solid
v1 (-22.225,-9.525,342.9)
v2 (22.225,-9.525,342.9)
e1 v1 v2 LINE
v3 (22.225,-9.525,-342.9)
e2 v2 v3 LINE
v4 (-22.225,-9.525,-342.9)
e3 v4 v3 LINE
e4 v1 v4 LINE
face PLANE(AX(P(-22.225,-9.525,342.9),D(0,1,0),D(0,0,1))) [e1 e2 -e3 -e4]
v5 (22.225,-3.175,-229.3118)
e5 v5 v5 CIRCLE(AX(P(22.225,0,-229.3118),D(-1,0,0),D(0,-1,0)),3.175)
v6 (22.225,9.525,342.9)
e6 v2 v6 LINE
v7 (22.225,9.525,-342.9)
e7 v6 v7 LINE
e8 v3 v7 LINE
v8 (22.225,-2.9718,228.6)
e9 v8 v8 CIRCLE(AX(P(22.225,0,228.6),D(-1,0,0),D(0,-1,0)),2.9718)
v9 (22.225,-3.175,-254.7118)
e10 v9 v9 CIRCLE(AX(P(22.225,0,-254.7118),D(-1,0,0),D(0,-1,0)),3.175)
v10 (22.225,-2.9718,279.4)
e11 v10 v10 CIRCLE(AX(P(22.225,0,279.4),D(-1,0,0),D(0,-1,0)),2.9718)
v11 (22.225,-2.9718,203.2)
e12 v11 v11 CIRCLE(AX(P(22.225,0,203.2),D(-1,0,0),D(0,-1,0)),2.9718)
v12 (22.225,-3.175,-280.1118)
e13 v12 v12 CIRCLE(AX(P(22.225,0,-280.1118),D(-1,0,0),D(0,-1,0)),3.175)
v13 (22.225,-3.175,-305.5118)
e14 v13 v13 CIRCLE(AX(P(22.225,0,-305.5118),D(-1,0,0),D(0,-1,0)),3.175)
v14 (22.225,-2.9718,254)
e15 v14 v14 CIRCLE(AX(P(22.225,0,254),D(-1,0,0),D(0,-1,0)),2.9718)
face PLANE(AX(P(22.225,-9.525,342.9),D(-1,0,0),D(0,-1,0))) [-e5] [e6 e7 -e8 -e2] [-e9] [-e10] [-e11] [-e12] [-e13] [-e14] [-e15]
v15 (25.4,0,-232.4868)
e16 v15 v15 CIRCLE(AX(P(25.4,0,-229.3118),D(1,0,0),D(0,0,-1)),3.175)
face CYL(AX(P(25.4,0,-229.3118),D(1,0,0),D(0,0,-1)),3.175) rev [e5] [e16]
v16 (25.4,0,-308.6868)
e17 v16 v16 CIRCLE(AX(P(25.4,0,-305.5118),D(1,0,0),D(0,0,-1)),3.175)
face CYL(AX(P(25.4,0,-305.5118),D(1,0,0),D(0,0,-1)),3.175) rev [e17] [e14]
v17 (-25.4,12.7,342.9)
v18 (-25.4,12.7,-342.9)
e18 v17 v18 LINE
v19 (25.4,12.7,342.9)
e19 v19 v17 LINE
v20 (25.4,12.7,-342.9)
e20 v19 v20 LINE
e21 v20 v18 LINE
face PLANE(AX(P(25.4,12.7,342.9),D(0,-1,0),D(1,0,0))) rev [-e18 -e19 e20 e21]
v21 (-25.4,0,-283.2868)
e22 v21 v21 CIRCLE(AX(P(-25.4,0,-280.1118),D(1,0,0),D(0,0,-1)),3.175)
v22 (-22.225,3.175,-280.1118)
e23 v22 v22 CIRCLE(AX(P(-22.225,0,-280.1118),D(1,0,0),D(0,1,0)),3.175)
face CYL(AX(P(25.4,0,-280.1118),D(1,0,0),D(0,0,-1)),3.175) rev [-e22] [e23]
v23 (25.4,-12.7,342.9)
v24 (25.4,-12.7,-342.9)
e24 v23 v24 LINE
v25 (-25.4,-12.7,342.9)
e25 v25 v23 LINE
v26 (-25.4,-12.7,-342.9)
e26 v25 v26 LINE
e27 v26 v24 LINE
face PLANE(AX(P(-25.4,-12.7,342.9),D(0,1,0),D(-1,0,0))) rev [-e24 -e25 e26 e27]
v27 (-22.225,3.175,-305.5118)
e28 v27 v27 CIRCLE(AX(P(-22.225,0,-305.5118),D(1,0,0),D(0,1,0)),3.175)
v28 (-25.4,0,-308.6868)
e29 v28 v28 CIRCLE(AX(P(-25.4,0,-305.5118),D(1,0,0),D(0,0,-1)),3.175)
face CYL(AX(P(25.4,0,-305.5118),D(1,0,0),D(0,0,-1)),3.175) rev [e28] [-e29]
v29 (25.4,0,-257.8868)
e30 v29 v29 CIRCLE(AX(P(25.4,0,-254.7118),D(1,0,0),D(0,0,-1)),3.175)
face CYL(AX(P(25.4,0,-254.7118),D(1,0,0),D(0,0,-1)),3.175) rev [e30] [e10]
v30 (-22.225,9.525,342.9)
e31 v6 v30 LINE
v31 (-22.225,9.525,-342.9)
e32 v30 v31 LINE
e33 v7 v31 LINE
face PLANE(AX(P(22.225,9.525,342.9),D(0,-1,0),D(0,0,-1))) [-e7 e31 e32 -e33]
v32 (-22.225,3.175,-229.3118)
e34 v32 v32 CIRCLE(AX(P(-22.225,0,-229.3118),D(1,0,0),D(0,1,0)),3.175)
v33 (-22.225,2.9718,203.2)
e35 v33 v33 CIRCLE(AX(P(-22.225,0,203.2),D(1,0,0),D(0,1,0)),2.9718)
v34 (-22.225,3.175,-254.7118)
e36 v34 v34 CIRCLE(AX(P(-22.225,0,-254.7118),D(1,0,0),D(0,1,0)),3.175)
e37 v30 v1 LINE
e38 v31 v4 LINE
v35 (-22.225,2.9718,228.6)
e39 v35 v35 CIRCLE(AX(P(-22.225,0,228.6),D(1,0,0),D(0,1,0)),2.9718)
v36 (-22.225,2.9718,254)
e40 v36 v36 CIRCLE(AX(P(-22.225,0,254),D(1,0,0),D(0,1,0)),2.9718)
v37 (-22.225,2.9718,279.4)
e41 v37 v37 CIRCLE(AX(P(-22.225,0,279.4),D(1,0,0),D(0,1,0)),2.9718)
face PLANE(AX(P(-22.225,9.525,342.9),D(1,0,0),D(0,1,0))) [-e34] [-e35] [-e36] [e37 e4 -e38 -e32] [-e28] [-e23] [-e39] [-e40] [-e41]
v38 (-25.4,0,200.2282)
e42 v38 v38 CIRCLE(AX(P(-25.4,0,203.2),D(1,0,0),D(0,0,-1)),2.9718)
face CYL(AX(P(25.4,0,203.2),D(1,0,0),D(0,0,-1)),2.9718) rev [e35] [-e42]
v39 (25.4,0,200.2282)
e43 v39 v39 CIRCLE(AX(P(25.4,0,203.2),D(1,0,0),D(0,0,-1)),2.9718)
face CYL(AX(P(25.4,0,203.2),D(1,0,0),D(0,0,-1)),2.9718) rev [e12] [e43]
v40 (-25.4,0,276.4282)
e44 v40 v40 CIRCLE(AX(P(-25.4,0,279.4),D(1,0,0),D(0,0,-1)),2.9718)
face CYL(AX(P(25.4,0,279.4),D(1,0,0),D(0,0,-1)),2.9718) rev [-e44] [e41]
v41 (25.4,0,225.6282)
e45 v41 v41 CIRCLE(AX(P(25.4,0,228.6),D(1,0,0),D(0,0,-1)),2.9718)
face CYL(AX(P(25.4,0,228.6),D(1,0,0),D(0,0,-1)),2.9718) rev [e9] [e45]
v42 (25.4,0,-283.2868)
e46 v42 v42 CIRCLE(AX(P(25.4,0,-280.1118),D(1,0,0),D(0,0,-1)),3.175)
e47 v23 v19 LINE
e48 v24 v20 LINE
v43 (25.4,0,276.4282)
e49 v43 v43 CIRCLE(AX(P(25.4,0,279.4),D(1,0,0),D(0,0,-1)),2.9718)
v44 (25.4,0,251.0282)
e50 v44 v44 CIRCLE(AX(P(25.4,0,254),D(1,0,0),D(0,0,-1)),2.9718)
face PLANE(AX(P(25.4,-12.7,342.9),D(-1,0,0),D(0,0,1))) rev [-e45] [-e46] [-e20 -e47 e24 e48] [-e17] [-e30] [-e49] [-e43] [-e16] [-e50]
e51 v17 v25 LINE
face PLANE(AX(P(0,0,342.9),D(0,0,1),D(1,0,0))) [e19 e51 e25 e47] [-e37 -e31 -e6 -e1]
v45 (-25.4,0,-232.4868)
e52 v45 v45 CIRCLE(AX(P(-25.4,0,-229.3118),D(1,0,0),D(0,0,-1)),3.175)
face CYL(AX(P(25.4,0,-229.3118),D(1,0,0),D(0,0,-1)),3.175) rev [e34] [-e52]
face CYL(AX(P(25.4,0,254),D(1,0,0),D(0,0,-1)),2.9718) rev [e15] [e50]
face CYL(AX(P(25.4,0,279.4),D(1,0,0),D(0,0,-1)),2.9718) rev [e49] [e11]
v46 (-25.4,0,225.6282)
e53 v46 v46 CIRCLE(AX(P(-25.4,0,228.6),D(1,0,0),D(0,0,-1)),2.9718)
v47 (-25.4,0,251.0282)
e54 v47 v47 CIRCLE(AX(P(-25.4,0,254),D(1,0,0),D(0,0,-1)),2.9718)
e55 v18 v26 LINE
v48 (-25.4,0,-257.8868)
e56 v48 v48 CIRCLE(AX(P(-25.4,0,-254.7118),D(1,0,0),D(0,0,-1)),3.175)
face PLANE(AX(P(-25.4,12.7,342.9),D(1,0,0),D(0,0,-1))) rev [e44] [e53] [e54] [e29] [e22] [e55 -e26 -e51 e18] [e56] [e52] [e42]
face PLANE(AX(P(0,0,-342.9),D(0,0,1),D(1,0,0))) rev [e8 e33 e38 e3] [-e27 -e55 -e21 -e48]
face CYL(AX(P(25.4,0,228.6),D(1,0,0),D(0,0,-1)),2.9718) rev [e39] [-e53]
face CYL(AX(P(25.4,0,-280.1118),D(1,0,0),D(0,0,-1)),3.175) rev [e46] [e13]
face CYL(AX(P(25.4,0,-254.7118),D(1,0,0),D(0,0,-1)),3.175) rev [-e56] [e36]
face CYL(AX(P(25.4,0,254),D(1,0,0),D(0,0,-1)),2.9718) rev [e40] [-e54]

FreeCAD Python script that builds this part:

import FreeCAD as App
import Part
import Sketcher
Q = App.Units.Quantity


def add_polygon(sketch, points):
    """Adds a closed chain of lines whose ends are joined by coincident constraints."""
    first, n = sketch.GeometryCount, len(points)
    for a, b in zip(points, points[1:] + points[:1]):
        sketch.addGeometry(Part.LineSegment(App.Vector(*a, 0), App.Vector(*b, 0)), False)
    for i in range(n):
        sketch.addConstraint(Sketcher.Constraint("Coincident", first + i, 2, first + (i + 1) % n, 1))

doc = App.newDocument("Part")
params = doc.addObject("Spreadsheet::Sheet", "Params")
for row, (alias, value) in enumerate([
    ("sketch1_width", "2 in"),
    ("sketch1_height", "1 in"),
    ("sketch1_width2", "1.75 in"),
    ("sketch1_height2", "0.75 in"),
    ("pad1_length", "13.5 in"),
    ("pad1_length2", "13.5 in"),
    ("sketch2_diameter", "0.234 in"),
    ("hole_diameter", "0.234 in"),
    ("sketch3_diameter", "0.25 in"),
    ("hole2_diameter", "0.25 in"),
], start=1):
    params.set(f"A{row}", alias)
    params.set(f"B{row}", "=" + value)
    params.setAlias(f"B{row}", alias)

body = doc.addObject("PartDesign::Body", "Body")

# Sketch on XY plane
sketch1 = body.newObject("Sketcher::SketchObject", "Sketch")
sketch1.AttachmentSupport = (doc.getObject("XY_Plane"), [""])
sketch1.MapMode = "FlatFace"
add_polygon(sketch1, [(-25, 13), (-25, -13), (25, -13), (25, 13)])  # lines 0-3
add_polygon(sketch1, [(22, -10), (-22, -10), (-22, 10), (22, 10)])  # lines 4-7
sketch1.addConstraint([
    Sketcher.Constraint("Vertical", 0),
    Sketcher.Constraint("Horizontal", 1),
    Sketcher.Constraint("Vertical", 2),
    Sketcher.Constraint("Horizontal", 3),
    Sketcher.Constraint("Horizontal", 4),
    Sketcher.Constraint("Vertical", 5),
    Sketcher.Constraint("Horizontal", 6),
    Sketcher.Constraint("Vertical", 7),
    Sketcher.Constraint("Symmetric", 0, 2, 2, 2, -1, 1),
    Sketcher.Constraint("Symmetric", 4, 2, 6, 2, -1, 1),
    Sketcher.Constraint("DistanceX", 1, 1, 1, 2, Q("2 in")),
    Sketcher.Constraint("DistanceY", 0, 2, 0, 1, Q("1 in")),
    Sketcher.Constraint("DistanceX", 4, 2, 4, 1, Q("1.75 in")),
    Sketcher.Constraint("DistanceY", 5, 1, 5, 2, Q("0.75 in")),
])
sketch1.setExpression("Constraints[18]", "Params.sketch1_width")
sketch1.setExpression("Constraints[19]", "Params.sketch1_height")
sketch1.setExpression("Constraints[20]", "Params.sketch1_width2")
sketch1.setExpression("Constraints[21]", "Params.sketch1_height2")
pad1 = body.newObject("PartDesign::Pad", "Pad")
pad1.Profile = sketch1
pad1.Type = "TwoLengths"
pad1.setExpression("Length", "Params.pad1_length")
pad1.setExpression("Length2", "Params.pad1_length2")

# Sketch on YZ plane
sketch2 = body.newObject("Sketcher::SketchObject", "Sketch001")
sketch2.AttachmentSupport = (doc.getObject("YZ_Plane"), [""])
sketch2.MapMode = "FlatFace"
sketch2.AttachmentOffset = App.Placement(App.Vector(0, 0, 1 * 25.4), App.Rotation())
sketch2.addGeometry([
    Part.Circle(App.Vector(0, 279.4, 0), App.Vector(0, 0, 1), 3),
    Part.Circle(App.Vector(0, 254, 0), App.Vector(0, 0, 1), 3),
    Part.Circle(App.Vector(0, 228.6, 0), App.Vector(0, 0, 1), 3),
    Part.Circle(App.Vector(0, 203.2, 0), App.Vector(0, 0, 1), 3),
], False)
sketch2.addConstraint([
    Sketcher.Constraint("Equal", 0, 1),
    Sketcher.Constraint("Equal", 1, 2),
    Sketcher.Constraint("Equal", 2, 3),
    Sketcher.Constraint("PointOnObject", 0, 3, -2),
    Sketcher.Constraint("PointOnObject", 1, 3, -2),
    Sketcher.Constraint("PointOnObject", 2, 3, -2),
    Sketcher.Constraint("PointOnObject", 3, 3, -2),
    Sketcher.Constraint("Diameter", 0, Q("0.234 in")),
    Sketcher.Constraint("DistanceY", -1, 1, 0, 3, Q("11 in")),
    Sketcher.Constraint("DistanceY", -1, 1, 1, 3, Q("10 in")),
    Sketcher.Constraint("DistanceY", -1, 1, 2, 3, Q("9 in")),
    Sketcher.Constraint("DistanceY", -1, 1, 3, 3, Q("8 in")),
])
sketch2.setExpression("Constraints[7]", "Params.sketch2_diameter")
doc.recompute()
hole = body.newObject("PartDesign::Hole", "Hole")
hole.Profile = sketch2
hole.ThreadType = "None"
hole.setExpression("Diameter", "Params.hole_diameter")
hole.DepthType = "ThroughAll"

# Sketch on YZ plane
sketch3 = body.newObject("Sketcher::SketchObject", "Sketch002")
sketch3.AttachmentSupport = (doc.getObject("YZ_Plane"), [""])
sketch3.MapMode = "FlatFace"
sketch3.AttachmentOffset = App.Placement(App.Vector(0, 0, 1 * 25.4), App.Rotation())
sketch3.addGeometry([
    Part.Circle(App.Vector(0, -305.5, 0), App.Vector(0, 0, 1), 3.2),
    Part.Circle(App.Vector(0, -280.1, 0), App.Vector(0, 0, 1), 3.2),
    Part.Circle(App.Vector(0, -254.7, 0), App.Vector(0, 0, 1), 3.2),
    Part.Circle(App.Vector(0, -229.3, 0), App.Vector(0, 0, 1), 3.2),
], False)
sketch3.addConstraint([
    Sketcher.Constraint("Equal", 0, 1),
    Sketcher.Constraint("Equal", 1, 2),
    Sketcher.Constraint("Equal", 2, 3),
    Sketcher.Constraint("PointOnObject", 0, 3, -2),
    Sketcher.Constraint("PointOnObject", 1, 3, -2),
    Sketcher.Constraint("PointOnObject", 2, 3, -2),
    Sketcher.Constraint("PointOnObject", 3, 3, -2),
    Sketcher.Constraint("Diameter", 0, Q("0.25 in")),
    Sketcher.Constraint("DistanceY", 0, 3, 1, 3, Q("1 in")),
    Sketcher.Constraint("DistanceY", 1, 3, 2, 3, Q("1 in")),
    Sketcher.Constraint("DistanceY", 2, 3, 3, 3, Q("1 in")),
    Sketcher.Constraint("DistanceY", 0, 3, -1, 1, Q("305.5118 mm")),
])
sketch3.setExpression("Constraints[7]", "Params.sketch3_diameter")
doc.recompute()
hole2 = body.newObject("PartDesign::Hole", "Hole001")
hole2.Profile = sketch3
hole2.ThreadType = "None"
hole2.setExpression("Diameter", "Params.hole2_diameter")
hole2.DepthType = "ThroughAll"

doc.recompute()
